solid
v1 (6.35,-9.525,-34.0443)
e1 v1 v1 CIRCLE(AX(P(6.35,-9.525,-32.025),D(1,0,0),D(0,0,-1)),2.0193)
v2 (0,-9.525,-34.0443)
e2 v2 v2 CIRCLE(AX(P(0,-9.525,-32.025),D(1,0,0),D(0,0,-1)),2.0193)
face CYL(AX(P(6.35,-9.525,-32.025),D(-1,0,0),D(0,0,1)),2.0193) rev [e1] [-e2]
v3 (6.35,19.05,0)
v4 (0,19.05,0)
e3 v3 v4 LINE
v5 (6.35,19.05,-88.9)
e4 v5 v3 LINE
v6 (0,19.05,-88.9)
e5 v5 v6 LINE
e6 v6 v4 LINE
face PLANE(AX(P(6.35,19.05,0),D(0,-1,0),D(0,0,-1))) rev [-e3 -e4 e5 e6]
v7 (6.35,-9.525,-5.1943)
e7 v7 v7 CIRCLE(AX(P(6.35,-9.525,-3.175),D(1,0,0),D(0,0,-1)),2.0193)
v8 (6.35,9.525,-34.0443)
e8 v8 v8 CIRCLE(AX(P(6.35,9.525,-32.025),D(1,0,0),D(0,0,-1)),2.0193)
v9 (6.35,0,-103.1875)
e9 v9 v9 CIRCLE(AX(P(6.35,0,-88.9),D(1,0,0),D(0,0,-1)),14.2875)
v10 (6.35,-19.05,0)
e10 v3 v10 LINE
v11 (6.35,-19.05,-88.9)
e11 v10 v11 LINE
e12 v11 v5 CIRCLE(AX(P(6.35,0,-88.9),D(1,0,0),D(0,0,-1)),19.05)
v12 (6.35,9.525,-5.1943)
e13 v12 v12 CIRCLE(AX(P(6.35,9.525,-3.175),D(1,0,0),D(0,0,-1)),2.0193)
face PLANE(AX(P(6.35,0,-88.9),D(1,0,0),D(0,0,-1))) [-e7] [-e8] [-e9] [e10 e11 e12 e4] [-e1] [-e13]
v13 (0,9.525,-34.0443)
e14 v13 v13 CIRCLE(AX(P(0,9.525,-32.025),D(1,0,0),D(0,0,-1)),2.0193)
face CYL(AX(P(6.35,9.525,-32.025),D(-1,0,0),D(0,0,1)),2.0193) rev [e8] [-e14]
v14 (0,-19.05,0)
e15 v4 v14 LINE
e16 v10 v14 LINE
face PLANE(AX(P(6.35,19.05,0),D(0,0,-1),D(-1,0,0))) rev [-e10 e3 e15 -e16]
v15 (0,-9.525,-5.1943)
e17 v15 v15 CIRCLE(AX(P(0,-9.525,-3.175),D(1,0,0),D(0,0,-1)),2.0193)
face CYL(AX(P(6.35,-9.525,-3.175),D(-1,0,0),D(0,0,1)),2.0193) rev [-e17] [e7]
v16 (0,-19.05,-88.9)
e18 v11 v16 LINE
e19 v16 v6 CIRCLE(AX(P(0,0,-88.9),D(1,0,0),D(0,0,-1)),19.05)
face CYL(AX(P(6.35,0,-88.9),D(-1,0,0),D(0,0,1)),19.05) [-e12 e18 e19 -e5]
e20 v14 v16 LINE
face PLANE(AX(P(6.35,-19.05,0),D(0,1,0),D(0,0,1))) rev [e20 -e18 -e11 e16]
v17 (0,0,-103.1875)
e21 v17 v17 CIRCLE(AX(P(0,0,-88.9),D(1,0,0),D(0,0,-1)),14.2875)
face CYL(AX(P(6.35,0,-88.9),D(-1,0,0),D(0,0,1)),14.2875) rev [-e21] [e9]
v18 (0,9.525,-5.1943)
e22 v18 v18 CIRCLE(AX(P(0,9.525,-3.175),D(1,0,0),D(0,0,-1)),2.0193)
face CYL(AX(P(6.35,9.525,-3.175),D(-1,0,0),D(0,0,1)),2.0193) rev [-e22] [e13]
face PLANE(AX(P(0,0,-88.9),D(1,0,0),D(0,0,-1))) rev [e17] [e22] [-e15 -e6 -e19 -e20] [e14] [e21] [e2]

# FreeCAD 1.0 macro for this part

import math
import FreeCAD as App
import Part
import Sketcher
Q = App.Units.Quantity

doc = App.newDocument("Part")
body = doc.addObject("PartDesign::Body", "Body")

# Sketch on YZ plane
sketch1 = body.newObject("Sketcher::SketchObject", "Sketch")
sketch1.AttachmentSupport = (doc.getObject("YZ_Plane"), [""])
sketch1.MapMode = "FlatFace"
sketch1.addGeometry([
    Part.LineSegment(App.Vector(19.05, 0, 0), App.Vector(-19.05, 0, 0)),  # 0
    Part.LineSegment(App.Vector(-19.05, 0, 0), App.Vector(-19.05, -88.9, 0)),  # 1
    Part.ArcOfCircle(Part.Circle(App.Vector(0, -88.9, 0), App.Vector(0, 0, 1), 19.05), math.radians(180), math.radians(360)),  # 2
    Part.LineSegment(App.Vector(19.05, -88.9, 0), App.Vector(19.05, 0, 0)),  # 3
    Part.Circle(App.Vector(-9.525, -3.175, 0), App.Vector(0, 0, 1), 2.0193),  # 4
    Part.Circle(App.Vector(-9.525, -32.025, 0), App.Vector(0, 0, 1), 2.0193),  # 5
    Part.Circle(App.Vector(9.525, -3.175, 0), App.Vector(0, 0, 1), 2.0193),  # 6
    Part.Circle(App.Vector(9.525, -32.025, 0), App.Vector(0, 0, 1), 2.0193),  # 7
    Part.Circle(App.Vector(0, -88.9, 0), App.Vector(0, 0, 1), 14.2875),  # 8
], False)
sketch1.addConstraint([
    Sketcher.Constraint("Coincident", 0, 2, 1, 1),
    Sketcher.Constraint("Tangent", 1, 2, 2, 1),
    Sketcher.Constraint("Tangent", 2, 2, 3, 1),
    Sketcher.Constraint("Coincident", 3, 2, 0, 1),
    Sketcher.Constraint("Horizontal", 0),
    Sketcher.Constraint("Vertical", 1),
    Sketcher.Constraint("Vertical", 3),
    Sketcher.Constraint("Coincident", 8, 3, 2, 3),
    Sketcher.Constraint("Equal", 4, 5),
    Sketcher.Constraint("Equal", 5, 6),
    Sketcher.Constraint("Equal", 6, 7),
    Sketcher.Constraint("Symmetric", 0, 2, 3, 2, -1, 1),
    Sketcher.Constraint("Symmetric", 4, 3, 6, 3, -2),
    Sketcher.Constraint("Symmetric", 5, 3, 7, 3, -2),
    Sketcher.Constraint("Vertical", 4, 3, 5, 3),
    Sketcher.Constraint("Radius", 2, Q("0.75 in")),
    Sketcher.Constraint("Diameter", 4, Q("0.159 in")),
    Sketcher.Constraint("Diameter", 8, Q("1.125 in")),
    Sketcher.Constraint("DistanceY", 1, 2, 1, 1, Q("3.5 in")),
    Sketcher.Constraint("DistanceX", 4, 3, 6, 3, Q("0.75 in")),
    Sketcher.Constraint("DistanceY", 4, 3, -1, 1, Q("0.125 in")),
    Sketcher.Constraint("DistanceY", 5, 3, -1, 1, 32.025),
])
pad1 = body.newObject("PartDesign::Pad", "Pad")
pad1.Profile = sketch1
pad1.Length = Q("0.25 in")

doc.recompute()
